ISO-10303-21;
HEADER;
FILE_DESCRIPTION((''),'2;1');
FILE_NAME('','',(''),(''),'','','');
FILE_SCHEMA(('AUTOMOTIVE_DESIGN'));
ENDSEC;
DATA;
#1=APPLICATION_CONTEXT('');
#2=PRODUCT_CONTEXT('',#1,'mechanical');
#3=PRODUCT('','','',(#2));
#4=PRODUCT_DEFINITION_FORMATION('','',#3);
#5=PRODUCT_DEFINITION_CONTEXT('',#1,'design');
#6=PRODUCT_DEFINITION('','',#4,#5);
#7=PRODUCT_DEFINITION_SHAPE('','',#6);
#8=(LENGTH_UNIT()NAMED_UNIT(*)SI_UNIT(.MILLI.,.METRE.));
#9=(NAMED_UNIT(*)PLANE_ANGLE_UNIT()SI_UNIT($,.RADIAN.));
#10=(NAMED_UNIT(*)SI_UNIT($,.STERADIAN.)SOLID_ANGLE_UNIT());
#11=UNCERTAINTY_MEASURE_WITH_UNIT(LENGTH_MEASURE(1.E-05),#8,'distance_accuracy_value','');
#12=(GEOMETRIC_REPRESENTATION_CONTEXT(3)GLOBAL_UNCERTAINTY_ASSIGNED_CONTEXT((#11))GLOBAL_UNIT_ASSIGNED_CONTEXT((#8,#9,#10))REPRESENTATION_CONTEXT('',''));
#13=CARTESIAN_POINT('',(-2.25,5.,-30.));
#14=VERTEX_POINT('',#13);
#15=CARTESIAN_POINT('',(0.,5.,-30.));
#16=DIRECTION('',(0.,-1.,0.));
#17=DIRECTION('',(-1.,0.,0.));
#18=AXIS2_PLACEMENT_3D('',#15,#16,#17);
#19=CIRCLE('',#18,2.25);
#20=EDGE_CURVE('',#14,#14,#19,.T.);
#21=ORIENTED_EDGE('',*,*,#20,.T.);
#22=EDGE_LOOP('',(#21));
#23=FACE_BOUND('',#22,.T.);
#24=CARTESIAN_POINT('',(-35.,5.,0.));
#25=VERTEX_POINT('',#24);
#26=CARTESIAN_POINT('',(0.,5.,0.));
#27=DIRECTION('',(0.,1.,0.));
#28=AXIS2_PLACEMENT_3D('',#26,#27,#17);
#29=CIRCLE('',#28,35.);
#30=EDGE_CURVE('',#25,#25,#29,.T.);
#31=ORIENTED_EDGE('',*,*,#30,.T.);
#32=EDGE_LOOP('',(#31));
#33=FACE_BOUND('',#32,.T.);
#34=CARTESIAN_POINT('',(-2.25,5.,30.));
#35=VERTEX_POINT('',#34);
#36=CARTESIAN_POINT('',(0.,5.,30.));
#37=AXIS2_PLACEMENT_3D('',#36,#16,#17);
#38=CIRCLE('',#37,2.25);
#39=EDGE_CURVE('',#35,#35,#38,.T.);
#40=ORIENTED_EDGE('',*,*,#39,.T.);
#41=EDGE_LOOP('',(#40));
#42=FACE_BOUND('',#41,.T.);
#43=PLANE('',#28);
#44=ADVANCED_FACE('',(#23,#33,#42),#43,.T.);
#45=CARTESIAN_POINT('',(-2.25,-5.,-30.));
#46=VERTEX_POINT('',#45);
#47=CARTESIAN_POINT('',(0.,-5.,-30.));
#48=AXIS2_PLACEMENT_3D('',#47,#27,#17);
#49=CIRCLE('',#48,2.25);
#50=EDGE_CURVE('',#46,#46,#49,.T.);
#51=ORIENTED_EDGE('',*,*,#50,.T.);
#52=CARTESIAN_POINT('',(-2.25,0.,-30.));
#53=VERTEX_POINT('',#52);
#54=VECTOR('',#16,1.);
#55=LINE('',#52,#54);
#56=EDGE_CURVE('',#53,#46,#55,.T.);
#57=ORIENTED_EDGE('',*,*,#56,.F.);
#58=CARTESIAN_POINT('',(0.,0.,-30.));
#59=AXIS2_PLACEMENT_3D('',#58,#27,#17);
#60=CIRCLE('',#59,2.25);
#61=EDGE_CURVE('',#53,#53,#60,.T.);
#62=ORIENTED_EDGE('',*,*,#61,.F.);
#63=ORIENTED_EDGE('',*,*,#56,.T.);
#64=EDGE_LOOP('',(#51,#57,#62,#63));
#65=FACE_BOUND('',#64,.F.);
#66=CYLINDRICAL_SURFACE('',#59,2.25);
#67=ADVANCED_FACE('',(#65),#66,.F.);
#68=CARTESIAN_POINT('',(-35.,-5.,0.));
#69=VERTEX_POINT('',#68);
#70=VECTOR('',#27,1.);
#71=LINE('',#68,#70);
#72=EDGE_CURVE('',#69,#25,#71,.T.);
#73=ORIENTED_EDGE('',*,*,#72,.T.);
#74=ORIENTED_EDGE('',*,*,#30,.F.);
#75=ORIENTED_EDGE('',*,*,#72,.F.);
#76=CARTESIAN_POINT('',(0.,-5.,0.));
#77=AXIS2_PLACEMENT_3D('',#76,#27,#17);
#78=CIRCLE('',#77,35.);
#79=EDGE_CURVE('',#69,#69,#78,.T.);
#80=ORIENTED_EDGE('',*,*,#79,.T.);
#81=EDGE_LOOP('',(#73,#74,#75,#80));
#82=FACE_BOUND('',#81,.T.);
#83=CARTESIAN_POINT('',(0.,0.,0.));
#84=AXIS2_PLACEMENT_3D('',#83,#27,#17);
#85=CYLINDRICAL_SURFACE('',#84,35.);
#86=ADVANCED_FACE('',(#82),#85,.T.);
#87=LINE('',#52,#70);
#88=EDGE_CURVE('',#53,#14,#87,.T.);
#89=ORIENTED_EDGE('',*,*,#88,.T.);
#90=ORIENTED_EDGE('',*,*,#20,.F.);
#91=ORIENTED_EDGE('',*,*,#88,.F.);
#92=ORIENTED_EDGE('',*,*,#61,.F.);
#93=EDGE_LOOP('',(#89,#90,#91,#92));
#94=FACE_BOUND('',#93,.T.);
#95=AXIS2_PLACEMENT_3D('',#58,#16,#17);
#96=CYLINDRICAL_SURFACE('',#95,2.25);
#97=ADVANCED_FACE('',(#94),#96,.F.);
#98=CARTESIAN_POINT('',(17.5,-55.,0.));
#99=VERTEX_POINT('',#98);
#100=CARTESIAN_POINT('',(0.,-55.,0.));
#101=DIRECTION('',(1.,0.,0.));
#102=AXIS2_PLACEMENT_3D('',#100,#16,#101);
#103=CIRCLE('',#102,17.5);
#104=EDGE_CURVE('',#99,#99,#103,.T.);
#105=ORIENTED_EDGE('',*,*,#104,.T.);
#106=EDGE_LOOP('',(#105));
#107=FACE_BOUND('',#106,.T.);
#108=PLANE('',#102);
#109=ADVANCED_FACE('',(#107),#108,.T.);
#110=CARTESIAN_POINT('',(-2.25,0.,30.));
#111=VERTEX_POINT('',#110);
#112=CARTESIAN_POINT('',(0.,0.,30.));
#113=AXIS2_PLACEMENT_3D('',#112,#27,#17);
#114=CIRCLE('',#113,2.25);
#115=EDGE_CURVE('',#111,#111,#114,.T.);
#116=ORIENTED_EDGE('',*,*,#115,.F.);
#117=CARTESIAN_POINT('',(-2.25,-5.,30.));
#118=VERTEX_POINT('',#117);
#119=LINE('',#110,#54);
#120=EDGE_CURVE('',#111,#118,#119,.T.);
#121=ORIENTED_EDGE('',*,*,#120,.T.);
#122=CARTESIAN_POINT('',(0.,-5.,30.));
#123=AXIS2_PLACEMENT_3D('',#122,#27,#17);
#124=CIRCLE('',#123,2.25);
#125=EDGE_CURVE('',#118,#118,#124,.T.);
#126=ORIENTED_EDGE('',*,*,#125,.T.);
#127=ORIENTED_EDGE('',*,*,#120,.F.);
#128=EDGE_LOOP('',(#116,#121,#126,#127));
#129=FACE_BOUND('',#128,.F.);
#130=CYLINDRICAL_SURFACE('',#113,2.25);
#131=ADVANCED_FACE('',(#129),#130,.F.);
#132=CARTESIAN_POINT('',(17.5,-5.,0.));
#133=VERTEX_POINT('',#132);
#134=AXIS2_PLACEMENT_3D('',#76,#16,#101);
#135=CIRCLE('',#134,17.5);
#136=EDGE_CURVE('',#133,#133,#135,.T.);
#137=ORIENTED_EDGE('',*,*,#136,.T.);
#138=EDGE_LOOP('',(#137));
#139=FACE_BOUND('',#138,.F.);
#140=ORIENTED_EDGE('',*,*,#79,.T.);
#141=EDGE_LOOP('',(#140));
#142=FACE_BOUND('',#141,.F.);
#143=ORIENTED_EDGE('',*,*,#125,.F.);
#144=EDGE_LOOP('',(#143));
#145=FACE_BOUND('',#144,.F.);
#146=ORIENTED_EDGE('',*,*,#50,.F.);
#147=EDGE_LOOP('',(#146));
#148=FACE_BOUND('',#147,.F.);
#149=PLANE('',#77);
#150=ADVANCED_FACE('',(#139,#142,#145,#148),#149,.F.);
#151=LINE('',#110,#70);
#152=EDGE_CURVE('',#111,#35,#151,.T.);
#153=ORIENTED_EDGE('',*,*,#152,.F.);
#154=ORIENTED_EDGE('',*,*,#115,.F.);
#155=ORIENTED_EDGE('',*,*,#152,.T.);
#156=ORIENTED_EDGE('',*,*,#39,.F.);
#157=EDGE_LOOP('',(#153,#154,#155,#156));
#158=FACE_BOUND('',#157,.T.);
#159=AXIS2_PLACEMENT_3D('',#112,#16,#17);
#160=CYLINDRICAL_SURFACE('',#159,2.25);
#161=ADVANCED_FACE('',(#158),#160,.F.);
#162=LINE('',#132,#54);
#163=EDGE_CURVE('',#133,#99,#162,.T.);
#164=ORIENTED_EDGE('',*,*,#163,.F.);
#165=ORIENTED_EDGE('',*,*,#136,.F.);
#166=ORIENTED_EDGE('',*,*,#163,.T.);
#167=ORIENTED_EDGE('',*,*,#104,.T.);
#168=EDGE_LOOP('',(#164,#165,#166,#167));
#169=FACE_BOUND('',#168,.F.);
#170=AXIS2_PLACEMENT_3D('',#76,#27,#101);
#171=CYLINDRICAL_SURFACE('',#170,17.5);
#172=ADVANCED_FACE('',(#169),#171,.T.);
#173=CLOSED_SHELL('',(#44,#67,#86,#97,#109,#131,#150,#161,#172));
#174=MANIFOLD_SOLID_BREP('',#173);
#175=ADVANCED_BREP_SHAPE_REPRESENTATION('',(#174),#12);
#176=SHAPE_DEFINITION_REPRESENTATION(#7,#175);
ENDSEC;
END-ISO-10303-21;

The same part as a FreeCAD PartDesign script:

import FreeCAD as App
import Part
import Sketcher
from FreeCAD import Vector
Q = App.Units.Quantity

doc = App.newDocument("Part")
body = doc.addObject("PartDesign::Body", "Body")

# Sketch on XZ plane
sketch1 = body.newObject("Sketcher::SketchObject", "Sketch")
sketch1.AttachmentSupport = (doc.getObject("XZ_Plane"), [""])
sketch1.MapMode = "FlatFace"
sketch1.addGeometry([
    Part.Circle(Vector(0, 0, 0), Vector(0, 0, 1), 35),
    Part.Circle(Vector(0, 30, 0), Vector(0, 0, 1), 2.2),
    Part.Circle(Vector(0, -30, 0), Vector(0, 0, 1), 2.2),
], False)
sketch1.addConstraint([
    Sketcher.Constraint("Coincident", 0, 3, -1, 1),
    Sketcher.Constraint("Equal", 1, 2),
    Sketcher.Constraint("Symmetric", 1, 3, 2, 3, -1, 1),
    Sketcher.Constraint("PointOnObject", 1, 3, -2),
    Sketcher.Constraint("Diameter", 0, Q("70 mm")),
    Sketcher.Constraint("Diameter", 1, Q("4.5 mm")),
    Sketcher.Constraint("DistanceY", 2, 3, 1, 3, Q("60 mm")),
])
pad1 = body.newObject("PartDesign::Pad", "Pad")
pad1.Profile = sketch1
pad1.Length = 10
pad1.Midplane = True

# Sketch on XZ plane
sketch2 = body.newObject("Sketcher::SketchObject", "Sketch001")
sketch2.AttachmentSupport = (doc.getObject("XZ_Plane"), [""])
sketch2.MapMode = "FlatFace"
sketch2.AttachmentOffset = App.Placement(Vector(0, 0, 5), App.Rotation())
sketch2.addGeometry(Part.Circle(Vector(0, 0, 0), Vector(0, 0, 1), 18), False)
sketch2.addConstraint([
    Sketcher.Constraint("Coincident", 0, 3, -1, 1),
    Sketcher.Constraint("Diameter", 0, Q("35 mm")),
])
pad2 = body.newObject("PartDesign::Pad", "Pad001")
pad2.Profile = sketch2
pad2.Length = 50

doc.recompute()
